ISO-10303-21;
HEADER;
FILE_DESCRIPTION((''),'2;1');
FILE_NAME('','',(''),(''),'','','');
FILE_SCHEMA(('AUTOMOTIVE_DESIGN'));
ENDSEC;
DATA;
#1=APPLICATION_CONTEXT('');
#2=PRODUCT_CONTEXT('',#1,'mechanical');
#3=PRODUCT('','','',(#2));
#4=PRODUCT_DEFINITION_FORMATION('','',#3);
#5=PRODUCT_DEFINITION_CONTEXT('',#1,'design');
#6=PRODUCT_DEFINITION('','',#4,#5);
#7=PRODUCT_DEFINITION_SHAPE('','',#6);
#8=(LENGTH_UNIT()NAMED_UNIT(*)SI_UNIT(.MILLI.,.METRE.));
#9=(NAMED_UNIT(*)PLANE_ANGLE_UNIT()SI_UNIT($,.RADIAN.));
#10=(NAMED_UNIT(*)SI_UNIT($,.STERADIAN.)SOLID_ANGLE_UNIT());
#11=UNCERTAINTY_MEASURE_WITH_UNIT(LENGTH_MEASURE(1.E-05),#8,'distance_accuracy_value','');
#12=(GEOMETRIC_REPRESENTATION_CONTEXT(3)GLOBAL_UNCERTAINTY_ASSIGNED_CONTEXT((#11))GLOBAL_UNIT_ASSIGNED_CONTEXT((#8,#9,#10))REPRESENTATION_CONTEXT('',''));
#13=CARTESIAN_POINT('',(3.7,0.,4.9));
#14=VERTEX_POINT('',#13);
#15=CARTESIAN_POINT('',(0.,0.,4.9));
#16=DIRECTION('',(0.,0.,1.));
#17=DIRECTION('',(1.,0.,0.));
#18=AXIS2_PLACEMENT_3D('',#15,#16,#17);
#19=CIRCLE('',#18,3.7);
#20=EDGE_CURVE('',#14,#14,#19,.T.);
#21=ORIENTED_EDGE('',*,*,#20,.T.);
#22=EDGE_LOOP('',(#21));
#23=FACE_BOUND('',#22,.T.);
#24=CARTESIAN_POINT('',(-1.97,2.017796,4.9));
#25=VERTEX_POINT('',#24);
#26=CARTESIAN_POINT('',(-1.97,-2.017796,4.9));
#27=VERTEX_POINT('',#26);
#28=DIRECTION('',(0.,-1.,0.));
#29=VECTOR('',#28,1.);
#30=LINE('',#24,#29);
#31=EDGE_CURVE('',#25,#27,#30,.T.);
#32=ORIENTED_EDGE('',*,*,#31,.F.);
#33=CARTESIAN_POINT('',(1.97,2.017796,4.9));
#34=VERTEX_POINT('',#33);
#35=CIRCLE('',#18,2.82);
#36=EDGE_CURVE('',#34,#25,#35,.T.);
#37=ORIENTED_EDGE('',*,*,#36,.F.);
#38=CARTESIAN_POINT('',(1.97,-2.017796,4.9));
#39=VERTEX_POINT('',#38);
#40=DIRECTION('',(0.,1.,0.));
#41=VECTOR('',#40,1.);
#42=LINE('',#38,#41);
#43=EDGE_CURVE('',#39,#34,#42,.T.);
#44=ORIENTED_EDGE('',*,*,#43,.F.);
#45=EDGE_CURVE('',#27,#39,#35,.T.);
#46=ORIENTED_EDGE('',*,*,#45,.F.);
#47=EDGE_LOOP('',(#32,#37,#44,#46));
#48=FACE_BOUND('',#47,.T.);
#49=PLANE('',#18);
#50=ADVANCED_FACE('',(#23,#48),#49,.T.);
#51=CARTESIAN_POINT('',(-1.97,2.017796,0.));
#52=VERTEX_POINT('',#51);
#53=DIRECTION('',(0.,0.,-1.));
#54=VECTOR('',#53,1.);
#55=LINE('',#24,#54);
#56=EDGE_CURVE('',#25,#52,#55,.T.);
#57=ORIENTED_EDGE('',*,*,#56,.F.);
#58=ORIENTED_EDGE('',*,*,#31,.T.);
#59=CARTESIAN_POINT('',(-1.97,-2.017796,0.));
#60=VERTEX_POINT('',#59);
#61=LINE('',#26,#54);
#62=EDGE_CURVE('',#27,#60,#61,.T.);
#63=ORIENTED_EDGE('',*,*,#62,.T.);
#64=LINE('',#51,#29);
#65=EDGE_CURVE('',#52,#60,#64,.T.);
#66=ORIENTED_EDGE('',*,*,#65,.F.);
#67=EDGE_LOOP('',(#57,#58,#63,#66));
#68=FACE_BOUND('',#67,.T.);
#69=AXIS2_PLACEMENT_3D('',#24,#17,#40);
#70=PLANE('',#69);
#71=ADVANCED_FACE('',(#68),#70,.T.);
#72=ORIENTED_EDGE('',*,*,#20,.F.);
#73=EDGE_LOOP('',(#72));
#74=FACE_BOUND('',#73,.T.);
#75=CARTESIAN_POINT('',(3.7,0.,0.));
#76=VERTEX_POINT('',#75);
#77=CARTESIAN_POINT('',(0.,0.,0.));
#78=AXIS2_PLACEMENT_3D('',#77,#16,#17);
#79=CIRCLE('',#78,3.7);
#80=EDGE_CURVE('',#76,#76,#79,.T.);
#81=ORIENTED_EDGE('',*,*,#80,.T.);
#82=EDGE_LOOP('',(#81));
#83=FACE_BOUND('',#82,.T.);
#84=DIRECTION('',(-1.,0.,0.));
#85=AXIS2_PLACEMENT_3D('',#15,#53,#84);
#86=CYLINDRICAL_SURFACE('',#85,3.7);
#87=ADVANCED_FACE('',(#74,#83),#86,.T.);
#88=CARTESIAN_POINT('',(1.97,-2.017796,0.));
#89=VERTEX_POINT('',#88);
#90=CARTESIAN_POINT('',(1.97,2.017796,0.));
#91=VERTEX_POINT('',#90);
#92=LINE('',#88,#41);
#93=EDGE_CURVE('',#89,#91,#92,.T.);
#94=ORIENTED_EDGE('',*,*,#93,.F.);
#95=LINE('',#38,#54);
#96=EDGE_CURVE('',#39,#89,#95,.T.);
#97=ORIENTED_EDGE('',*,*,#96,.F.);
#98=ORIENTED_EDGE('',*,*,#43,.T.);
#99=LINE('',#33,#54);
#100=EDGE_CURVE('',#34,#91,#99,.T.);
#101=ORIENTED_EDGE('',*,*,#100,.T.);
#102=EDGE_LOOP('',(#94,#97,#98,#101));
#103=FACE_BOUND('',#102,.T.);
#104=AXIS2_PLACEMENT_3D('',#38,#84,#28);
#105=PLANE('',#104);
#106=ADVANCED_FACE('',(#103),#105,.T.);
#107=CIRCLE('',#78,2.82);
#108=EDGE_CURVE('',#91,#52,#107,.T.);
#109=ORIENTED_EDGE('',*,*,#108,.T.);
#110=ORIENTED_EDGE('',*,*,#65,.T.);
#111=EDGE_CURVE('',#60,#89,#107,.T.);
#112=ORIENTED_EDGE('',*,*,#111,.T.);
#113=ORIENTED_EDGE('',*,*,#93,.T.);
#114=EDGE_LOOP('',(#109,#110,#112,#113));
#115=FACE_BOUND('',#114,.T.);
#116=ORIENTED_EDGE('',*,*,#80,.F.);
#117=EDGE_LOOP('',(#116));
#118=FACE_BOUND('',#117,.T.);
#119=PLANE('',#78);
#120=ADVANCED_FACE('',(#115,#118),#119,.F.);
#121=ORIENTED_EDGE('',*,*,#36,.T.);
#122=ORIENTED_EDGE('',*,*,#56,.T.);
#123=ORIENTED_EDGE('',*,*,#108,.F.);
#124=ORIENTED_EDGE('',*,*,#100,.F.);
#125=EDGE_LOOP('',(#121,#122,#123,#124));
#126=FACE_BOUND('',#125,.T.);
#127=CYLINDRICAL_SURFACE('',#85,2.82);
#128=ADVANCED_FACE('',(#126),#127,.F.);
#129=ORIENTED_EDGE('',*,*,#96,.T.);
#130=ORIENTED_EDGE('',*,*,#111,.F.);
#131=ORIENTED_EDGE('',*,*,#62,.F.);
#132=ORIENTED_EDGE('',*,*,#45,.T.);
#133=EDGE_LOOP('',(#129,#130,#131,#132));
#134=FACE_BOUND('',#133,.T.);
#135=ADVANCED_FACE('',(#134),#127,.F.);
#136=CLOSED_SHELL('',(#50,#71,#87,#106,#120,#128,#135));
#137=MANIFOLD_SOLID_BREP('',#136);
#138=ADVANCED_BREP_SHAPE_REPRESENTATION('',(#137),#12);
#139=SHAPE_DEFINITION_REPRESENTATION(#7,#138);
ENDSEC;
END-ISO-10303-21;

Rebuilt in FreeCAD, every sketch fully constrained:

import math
import FreeCAD as App
import Part
import Sketcher
Q = App.Units.Quantity

doc = App.newDocument("Part")
body = doc.addObject("PartDesign::Body", "Body")

# Sketch on XY plane
sketch1 = body.newObject("Sketcher::SketchObject", "Sketch")
sketch1.AttachmentSupport = (doc.getObject("XY_Plane"), [""])
sketch1.MapMode = "FlatFace"
sketch1.addGeometry([
    Part.Circle(App.Vector(0, 0, 0), App.Vector(0, 0, 1), 3.7),  # 0
    Part.LineSegment(App.Vector(2, 2, 0), App.Vector(2, -2, 0)),  # 1
    Part.ArcOfCircle(Part.Circle(App.Vector(0, 0, 0), App.Vector(0, 0, 1), 2.8), math.radians(-134), math.radians(-46)),  # 2
    Part.LineSegment(App.Vector(-2, -2, 0), App.Vector(-2, 2, 0)),  # 3
    Part.ArcOfCircle(Part.Circle(App.Vector(0, 0, 0), App.Vector(0, 0, 1), 2.8), math.radians(46), math.radians(134)),  # 4
], False)
sketch1.addConstraint([
    Sketcher.Constraint("Coincident", 1, 2, 2, 2),
    Sketcher.Constraint("Coincident", 2, 1, 3, 1),
    Sketcher.Constraint("Coincident", 3, 2, 4, 2),
    Sketcher.Constraint("Coincident", 4, 1, 1, 1),
    Sketcher.Constraint("Vertical", 1),
    Sketcher.Constraint("Vertical", 3),
    Sketcher.Constraint("Coincident", 0, 3, -1, 1),
    Sketcher.Constraint("Coincident", 2, 3, -1, 1),
    Sketcher.Constraint("Coincident", 4, 3, -1, 1),
    Sketcher.Constraint("Equal", 2, 4),
    Sketcher.Constraint("Horizontal", 1, 2, 2, 1),
    Sketcher.Constraint("Diameter", 0, Q("7.4 mm")),
    Sketcher.Constraint("Radius", 2, Q("2.82 mm")),
    Sketcher.Constraint("DistanceX", -1, 1, 1, 2, Q("1.97 mm")),
])
pad1 = body.newObject("PartDesign::Pad", "Pad")
pad1.Profile = sketch1
pad1.Length = 4.9

doc.recompute()
